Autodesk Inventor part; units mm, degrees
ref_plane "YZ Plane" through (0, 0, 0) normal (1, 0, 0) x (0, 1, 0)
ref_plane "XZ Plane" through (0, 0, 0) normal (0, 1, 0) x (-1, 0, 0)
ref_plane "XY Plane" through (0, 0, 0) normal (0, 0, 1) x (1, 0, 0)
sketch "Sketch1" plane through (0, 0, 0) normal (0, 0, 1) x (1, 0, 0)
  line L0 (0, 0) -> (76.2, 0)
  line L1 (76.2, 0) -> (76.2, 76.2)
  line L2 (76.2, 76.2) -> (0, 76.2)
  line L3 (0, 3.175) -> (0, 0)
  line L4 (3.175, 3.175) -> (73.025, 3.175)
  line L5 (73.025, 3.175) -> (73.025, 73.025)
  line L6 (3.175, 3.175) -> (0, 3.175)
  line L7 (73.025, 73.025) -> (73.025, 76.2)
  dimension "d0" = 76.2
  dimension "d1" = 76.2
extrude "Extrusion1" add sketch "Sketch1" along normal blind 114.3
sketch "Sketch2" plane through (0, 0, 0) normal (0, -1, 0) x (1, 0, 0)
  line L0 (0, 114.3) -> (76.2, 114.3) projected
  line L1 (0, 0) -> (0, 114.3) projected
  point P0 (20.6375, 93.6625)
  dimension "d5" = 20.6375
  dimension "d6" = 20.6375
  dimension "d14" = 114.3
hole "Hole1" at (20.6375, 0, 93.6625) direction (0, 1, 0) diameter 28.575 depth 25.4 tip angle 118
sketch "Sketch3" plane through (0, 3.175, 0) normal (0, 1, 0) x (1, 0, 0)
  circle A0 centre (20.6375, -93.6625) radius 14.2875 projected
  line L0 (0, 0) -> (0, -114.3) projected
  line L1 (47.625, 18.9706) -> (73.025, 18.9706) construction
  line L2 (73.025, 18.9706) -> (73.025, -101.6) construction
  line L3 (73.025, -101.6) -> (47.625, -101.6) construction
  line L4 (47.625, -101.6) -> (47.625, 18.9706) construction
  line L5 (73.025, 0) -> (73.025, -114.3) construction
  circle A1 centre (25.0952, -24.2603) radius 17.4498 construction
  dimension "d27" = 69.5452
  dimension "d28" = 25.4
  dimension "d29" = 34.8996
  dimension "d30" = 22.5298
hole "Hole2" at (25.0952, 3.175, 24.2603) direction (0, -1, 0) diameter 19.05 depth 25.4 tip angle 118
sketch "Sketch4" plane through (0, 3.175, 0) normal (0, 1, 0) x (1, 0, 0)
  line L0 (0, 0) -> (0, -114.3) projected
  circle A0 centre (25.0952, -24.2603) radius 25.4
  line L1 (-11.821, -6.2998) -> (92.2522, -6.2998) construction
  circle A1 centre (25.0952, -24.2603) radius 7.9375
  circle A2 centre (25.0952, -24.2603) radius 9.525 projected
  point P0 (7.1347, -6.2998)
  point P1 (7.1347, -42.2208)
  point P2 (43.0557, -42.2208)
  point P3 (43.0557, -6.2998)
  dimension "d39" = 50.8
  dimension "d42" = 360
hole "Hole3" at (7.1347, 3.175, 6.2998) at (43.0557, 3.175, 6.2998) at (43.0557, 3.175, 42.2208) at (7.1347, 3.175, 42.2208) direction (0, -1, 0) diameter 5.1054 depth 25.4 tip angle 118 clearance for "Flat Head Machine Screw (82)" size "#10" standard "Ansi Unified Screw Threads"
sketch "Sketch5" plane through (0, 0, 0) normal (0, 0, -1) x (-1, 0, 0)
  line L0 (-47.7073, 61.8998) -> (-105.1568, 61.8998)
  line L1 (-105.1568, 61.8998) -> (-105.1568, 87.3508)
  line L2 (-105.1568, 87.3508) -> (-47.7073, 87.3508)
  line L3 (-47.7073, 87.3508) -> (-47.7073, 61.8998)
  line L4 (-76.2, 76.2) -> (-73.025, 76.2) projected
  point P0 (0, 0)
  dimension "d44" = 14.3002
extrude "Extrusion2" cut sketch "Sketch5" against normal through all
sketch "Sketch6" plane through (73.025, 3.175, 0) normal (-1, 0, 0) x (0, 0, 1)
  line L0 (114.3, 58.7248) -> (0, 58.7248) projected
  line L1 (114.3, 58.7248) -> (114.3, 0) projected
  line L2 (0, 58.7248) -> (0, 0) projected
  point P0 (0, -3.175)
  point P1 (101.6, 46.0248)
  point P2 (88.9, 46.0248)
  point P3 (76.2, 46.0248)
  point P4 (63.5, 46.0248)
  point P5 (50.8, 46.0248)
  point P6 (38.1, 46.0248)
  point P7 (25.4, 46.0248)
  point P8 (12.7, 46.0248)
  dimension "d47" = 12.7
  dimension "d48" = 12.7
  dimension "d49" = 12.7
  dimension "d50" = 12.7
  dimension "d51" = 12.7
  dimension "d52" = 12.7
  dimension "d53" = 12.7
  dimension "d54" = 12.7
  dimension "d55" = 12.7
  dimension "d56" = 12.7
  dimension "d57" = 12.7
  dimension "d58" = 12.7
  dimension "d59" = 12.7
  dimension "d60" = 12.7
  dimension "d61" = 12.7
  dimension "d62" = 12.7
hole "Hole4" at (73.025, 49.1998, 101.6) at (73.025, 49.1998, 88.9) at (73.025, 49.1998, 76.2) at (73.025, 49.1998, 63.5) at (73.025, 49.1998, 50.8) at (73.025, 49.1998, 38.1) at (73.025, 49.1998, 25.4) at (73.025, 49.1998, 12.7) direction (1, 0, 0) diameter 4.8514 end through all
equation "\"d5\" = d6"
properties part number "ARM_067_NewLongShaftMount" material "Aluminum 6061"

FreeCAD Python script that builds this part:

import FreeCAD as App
import Part
import Sketcher

V = App.Vector
Q = App.Units.Quantity


def add_polygon(sketch, points):
    """Adds a closed chain of lines whose ends are joined by coincident constraints."""
    first, n = sketch.GeometryCount, len(points)
    for a, b in zip(points, points[1:] + points[:1]):
        sketch.addGeometry(Part.LineSegment(App.Vector(*a, 0), App.Vector(*b, 0)), False)
    for i in range(n):
        sketch.addConstraint(Sketcher.Constraint("Coincident", first + i, 2, first + (i + 1) % n, 1))

doc = App.newDocument("Part")
body = doc.addObject("PartDesign::Body", "Body")

# Sketch on XY plane
sketch1 = doc.addObject("Sketcher::SketchObject", "Sketch")
body.addObject(sketch1)
sketch1.AttachmentSupport = (doc.XY_Plane, [""])
sketch1.MapMode = "FlatFace"
add_polygon(sketch1, [(0, 3.2), (0, 0), (76.2, 0), (76.2, 76.2), (73, 76.2), (73, 3.2)])  # lines 0-5
sketch1.addConstraint([
    Sketcher.Constraint("Vertical", 0),
    Sketcher.Constraint("Horizontal", 1),
    Sketcher.Constraint("Vertical", 2),
    Sketcher.Constraint("Horizontal", 3),
    Sketcher.Constraint("Vertical", 4),
    Sketcher.Constraint("Horizontal", 5),
    Sketcher.Constraint("Coincident", 0, 2, -1, 1),
    Sketcher.Constraint("Equal", 3, 0),
    Sketcher.Constraint("Equal", 1, 2),
    Sketcher.Constraint("DistanceX", 1, 1, 1, 2, Q("3 in")),
    Sketcher.Constraint("DistanceX", 3, 2, 3, 1, Q("0.125 in")),
])
pad1 = doc.addObject("PartDesign::Pad", "Pad")
body.addObject(pad1)
pad1.Profile = sketch1
pad1.Length = Q("4.5 in")

# Sketch on XZ plane
sketch2 = doc.addObject("Sketcher::SketchObject", "Sketch001")
body.addObject(sketch2)
sketch2.AttachmentSupport = (doc.XZ_Plane, [""])
sketch2.MapMode = "FlatFace"
sketch2.addGeometry(Part.Circle(V(21, 94, 0), V(0, 0, 1), 14), False)
sketch2.addConstraint([
    Sketcher.Constraint("Diameter", 0, Q("1.125 in")),
    Sketcher.Constraint("DistanceX", -1, 1, 0, 3, Q("0.8125 in")),
    Sketcher.Constraint("DistanceY", -1, 1, 0, 3, Q("3.6875 in")),
])
doc.recompute()
hole = doc.addObject("PartDesign::Hole", "Hole")
body.addObject(hole)
hole.Profile = sketch2
hole.ThreadType = "None"
hole.Diameter = Q("1.125 in")
hole.DepthType = "Dimension"
hole.Depth = Q("1 in")
hole.DrillPoint = "Angled"
hole.DrillPointAngle = 118

# Sketch on XZ plane
sketch3 = doc.addObject("Sketcher::SketchObject", "Sketch002")
body.addObject(sketch3)
sketch3.AttachmentSupport = (doc.XZ_Plane, [""])
sketch3.MapMode = "FlatFace"
sketch3.AttachmentOffset = App.Placement(V(0, 0, -0.125 * 25.4), App.Rotation())
sketch3.addGeometry(Part.Circle(V(25, 24, 0), V(0, 0, 1), 10), False)
sketch3.addConstraint([
    Sketcher.Constraint("Diameter", 0, Q("0.75 in")),
    Sketcher.Constraint("DistanceX", -1, 1, 0, 3, Q("0.988 in")),
    Sketcher.Constraint("DistanceY", -1, 1, 0, 3, 24.2603),
])
doc.recompute()
hole2 = doc.addObject("PartDesign::Hole", "Hole001")
body.addObject(hole2)
hole2.Profile = sketch3
hole2.ThreadType = "None"
hole2.Diameter = Q("0.75 in")
hole2.DepthType = "Dimension"
hole2.Depth = Q("1 in")
hole2.DrillPoint = "Angled"
hole2.DrillPointAngle = 118
hole2.Reversed = True

# Sketch on XZ plane
sketch4 = doc.addObject("Sketcher::SketchObject", "Sketch003")
body.addObject(sketch4)
sketch4.AttachmentSupport = (doc.XZ_Plane, [""])
sketch4.MapMode = "FlatFace"
sketch4.AttachmentOffset = App.Placement(V(0, 0, -0.125 * 25.4), App.Rotation())
sketch4.addGeometry([
    Part.Circle(V(7.1, 6.3, 0), V(0, 0, 1), 2.6),
    Part.Circle(V(43.1, 6.3, 0), V(0, 0, 1), 2.6),
    Part.Circle(V(43.1, 42.2, 0), V(0, 0, 1), 2.6),
    Part.Circle(V(7.1, 42.2, 0), V(0, 0, 1), 2.6),
], False)
sketch4.addConstraint([
    Sketcher.Constraint("Equal", 0, 1),
    Sketcher.Constraint("Equal", 1, 2),
    Sketcher.Constraint("Equal", 2, 3),
    Sketcher.Constraint("Horizontal", 0, 3, 1, 3),
    Sketcher.Constraint("Horizontal", 2, 3, 3, 3),
    Sketcher.Constraint("Vertical", 1, 3, 2, 3),
    Sketcher.Constraint("Vertical", 0, 3, 3, 3),
    Sketcher.Constraint("Diameter", 0, Q("0.201 in")),
    Sketcher.Constraint("DistanceX", -1, 1, 0, 3, Q("0.2809 in")),
    Sketcher.Constraint("DistanceX", -1, 1, 1, 3, Q("1.6951 in")),
    Sketcher.Constraint("DistanceY", -1, 1, 0, 3, 6.2998),
    Sketcher.Constraint("DistanceY", -1, 1, 2, 3, 42.2208),
])
doc.recompute()
hole3 = doc.addObject("PartDesign::Hole", "Hole002")
body.addObject(hole3)
hole3.Profile = sketch4
hole3.ThreadType = "None"
hole3.Diameter = Q("0.201 in")
hole3.DepthType = "Dimension"
hole3.Depth = Q("1 in")
hole3.DrillPoint = "Angled"
hole3.DrillPointAngle = 118
hole3.Reversed = True

# Sketch on XY plane
sketch5 = doc.addObject("Sketcher::SketchObject", "Sketch004")
body.addObject(sketch5)
sketch5.AttachmentSupport = (doc.XY_Plane, [""])
sketch5.MapMode = "FlatFace"
add_polygon(sketch5, [(105, 62), (48, 62), (48, 87), (105, 87)])  # lines 0-3
sketch5.addConstraint([
    Sketcher.Constraint("Horizontal", 0),
    Sketcher.Constraint("Vertical", 1),
    Sketcher.Constraint("Horizontal", 2),
    Sketcher.Constraint("Vertical", 3),
    Sketcher.Constraint("DistanceY", 1, 1, 1, 2, Q("1.002 in")),
    Sketcher.Constraint("DistanceX", 0, 2, 0, 1, Q("2.2618 in")),
    Sketcher.Constraint("DistanceY", -1, 1, 0, 2, Q("2.437 in")),
    Sketcher.Constraint("DistanceX", -1, 1, 0, 2, 47.7073),
])
pocket1 = doc.addObject("PartDesign::Pocket", "Pocket")
body.addObject(pocket1)
pocket1.Profile = sketch5
pocket1.Type = "ThroughAll"
pocket1.Reversed = True

# Sketch on YZ plane
sketch6 = doc.addObject("Sketcher::SketchObject", "Sketch005")
body.addObject(sketch6)
sketch6.AttachmentSupport = (doc.YZ_Plane, [""])
sketch6.MapMode = "FlatFace"
sketch6.AttachmentOffset = App.Placement(V(0, 0, 2.875 * 25.4), App.Rotation())
sketch6.addGeometry([
    Part.Circle(V(49.2, 101.6, 0), V(0, 0, 1), 2.4),  # 0
    Part.Circle(V(49.2, 88.9, 0), V(0, 0, 1), 2.4),  # 1
    Part.Circle(V(49.2, 76.2, 0), V(0, 0, 1), 2.4),  # 2
    Part.Circle(V(49.2, 63.5, 0), V(0, 0, 1), 2.4),  # 3
    Part.Circle(V(49.2, 50.8, 0), V(0, 0, 1), 2.4),  # 4
    Part.Circle(V(49.2, 38.1, 0), V(0, 0, 1), 2.4),  # 5
    Part.Circle(V(49.2, 25.4, 0), V(0, 0, 1), 2.4),  # 6
    Part.Circle(V(49.2, 12.7, 0), V(0, 0, 1), 2.4),  # 7
], False)
sketch6.addConstraint([
    Sketcher.Constraint("Equal", 0, 1),
    Sketcher.Constraint("Equal", 1, 2),
    Sketcher.Constraint("Equal", 2, 3),
    Sketcher.Constraint("Equal", 3, 4),
    Sketcher.Constraint("Equal", 4, 5),
    Sketcher.Constraint("Equal", 5, 6),
    Sketcher.Constraint("Equal", 6, 7),
    Sketcher.Constraint("Vertical", 0, 3, 1, 3),
    Sketcher.Constraint("Vertical", 1, 3, 2, 3),
    Sketcher.Constraint("Vertical", 2, 3, 3, 3),
    Sketcher.Constraint("Vertical", 3, 3, 4, 3),
    Sketcher.Constraint("Vertical", 4, 3, 5, 3),
    Sketcher.Constraint("Vertical", 5, 3, 6, 3),
    Sketcher.Constraint("Vertical", 6, 3, 7, 3),
    Sketcher.Constraint("Diameter", 0, Q("0.191 in")),
    Sketcher.Constraint("DistanceY", -1, 1, 0, 3, Q("4 in")),
    Sketcher.Constraint("DistanceY", -1, 1, 2, 3, Q("3 in")),
    Sketcher.Constraint("DistanceY", -1, 1, 4, 3, Q("2 in")),
    Sketcher.Constraint("DistanceY", -1, 1, 6, 3, Q("1 in")),
    Sketcher.Constraint("DistanceY", 3, 3, 1, 3, Q("1 in")),
    Sketcher.Constraint("DistanceY", 5, 3, 3, 3, Q("1 in")),
    Sketcher.Constraint("DistanceY", 7, 3, 5, 3, Q("1 in")),
    Sketcher.Constraint("DistanceY", -1, 1, 1, 3, Q("3.5 in")),
    Sketcher.Constraint("DistanceX", -1, 1, 0, 3, Q("1.937 in")),
])
doc.recompute()
hole4 = doc.addObject("PartDesign::Hole", "Hole003")
body.addObject(hole4)
hole4.Profile = sketch6
hole4.ThreadType = "None"
hole4.Diameter = Q("0.191 in")
hole4.DepthType = "ThroughAll"
hole4.Reversed = True

doc.recompute()
